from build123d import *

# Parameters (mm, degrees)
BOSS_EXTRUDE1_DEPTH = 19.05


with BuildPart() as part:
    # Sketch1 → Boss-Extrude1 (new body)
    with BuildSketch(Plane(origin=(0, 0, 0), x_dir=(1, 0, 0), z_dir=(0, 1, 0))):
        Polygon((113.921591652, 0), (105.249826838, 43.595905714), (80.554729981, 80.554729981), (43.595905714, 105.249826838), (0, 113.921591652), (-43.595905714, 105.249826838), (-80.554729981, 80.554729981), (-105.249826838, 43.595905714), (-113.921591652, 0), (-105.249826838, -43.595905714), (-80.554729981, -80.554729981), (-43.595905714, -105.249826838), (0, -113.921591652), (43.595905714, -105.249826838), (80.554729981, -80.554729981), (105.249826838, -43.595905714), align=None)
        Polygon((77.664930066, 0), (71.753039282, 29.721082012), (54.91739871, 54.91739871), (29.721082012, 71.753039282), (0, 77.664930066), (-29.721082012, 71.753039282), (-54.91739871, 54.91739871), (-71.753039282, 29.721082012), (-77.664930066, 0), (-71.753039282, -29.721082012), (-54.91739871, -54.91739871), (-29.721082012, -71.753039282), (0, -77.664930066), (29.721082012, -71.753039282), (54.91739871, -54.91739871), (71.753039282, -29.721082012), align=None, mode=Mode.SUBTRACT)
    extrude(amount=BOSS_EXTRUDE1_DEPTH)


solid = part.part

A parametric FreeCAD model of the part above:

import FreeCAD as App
import Part
import Sketcher

V = App.Vector
Q = App.Units.Quantity

doc = App.newDocument("Part")
body = doc.addObject("PartDesign::Body", "Body")

# Sketch on XZ plane
sketch1 = body.newObject("Sketcher::SketchObject", "Sketch")
sketch1.AttachmentSupport = (doc.getObject("XZ_Plane"), [""])
sketch1.MapMode = "FlatFace"
sketch1.addGeometry([
    Part.LineSegment(V(114, 0, 0), V(105, -44, 0)),  # 0
    Part.LineSegment(V(105, -44, 0), V(81, -81, 0)),  # 1
    Part.LineSegment(V(81, -81, 0), V(44, -105, 0)),  # 2
    Part.LineSegment(V(44, -105, 0), V(0, -114, 0)),  # 3
    Part.LineSegment(V(0, -114, 0), V(-44, -105, 0)),  # 4
    Part.LineSegment(V(-44, -105, 0), V(-81, -81, 0)),  # 5
    Part.LineSegment(V(-81, -81, 0), V(-105, -44, 0)),  # 6
    Part.LineSegment(V(-105, -44, 0), V(-114, 0, 0)),  # 7
    Part.LineSegment(V(-114, 0, 0), V(-105, 44, 0)),  # 8
    Part.LineSegment(V(-105, 44, 0), V(-81, 81, 0)),  # 9
    Part.LineSegment(V(-81, 81, 0), V(-44, 105, 0)),  # 10
    Part.LineSegment(V(-44, 105, 0), V(0, 114, 0)),  # 11
    Part.LineSegment(V(0, 114, 0), V(44, 105, 0)),  # 12
    Part.LineSegment(V(44, 105, 0), V(81, 81, 0)),  # 13
    Part.LineSegment(V(81, 81, 0), V(105, 44, 0)),  # 14
    Part.LineSegment(V(105, 44, 0), V(114, 0, 0)),  # 15
    Part.LineSegment(V(72, -30, 0), V(78, 0, 0)),  # 16
    Part.LineSegment(V(78, 0, 0), V(72, 30, 0)),  # 17
    Part.LineSegment(V(72, 30, 0), V(55, 55, 0)),  # 18
    Part.LineSegment(V(55, 55, 0), V(30, 72, 0)),  # 19
    Part.LineSegment(V(30, 72, 0), V(0, 78, 0)),  # 20
    Part.LineSegment(V(0, 78, 0), V(-30, 72, 0)),  # 21
    Part.LineSegment(V(-30, 72, 0), V(-55, 55, 0)),  # 22
    Part.LineSegment(V(-55, 55, 0), V(-72, 30, 0)),  # 23
    Part.LineSegment(V(-72, 30, 0), V(-78, 0, 0)),  # 24
    Part.LineSegment(V(-78, 0, 0), V(-72, -30, 0)),  # 25
    Part.LineSegment(V(-72, -30, 0), V(-55, -55, 0)),  # 26
    Part.LineSegment(V(-55, -55, 0), V(-30, -72, 0)),  # 27
    Part.LineSegment(V(-30, -72, 0), V(0, -78, 0)),  # 28
    Part.LineSegment(V(0, -78, 0), V(30, -72, 0)),  # 29
    Part.LineSegment(V(30, -72, 0), V(55, -55, 0)),  # 30
    Part.LineSegment(V(55, -55, 0), V(72, -30, 0)),  # 31
], False)
sketch1.addConstraint([
    Sketcher.Constraint("Coincident", 0, 2, 1, 1),
    Sketcher.Constraint("Coincident", 1, 2, 2, 1),
    Sketcher.Constraint("Coincident", 2, 2, 3, 1),
    Sketcher.Constraint("Coincident", 3, 2, 4, 1),
    Sketcher.Constraint("Coincident", 4, 2, 5, 1),
    Sketcher.Constraint("Coincident", 5, 2, 6, 1),
    Sketcher.Constraint("Coincident", 6, 2, 7, 1),
    Sketcher.Constraint("Coincident", 7, 2, 8, 1),
    Sketcher.Constraint("Coincident", 8, 2, 9, 1),
    Sketcher.Constraint("Coincident", 9, 2, 10, 1),
    Sketcher.Constraint("Coincident", 10, 2, 11, 1),
    Sketcher.Constraint("Coincident", 11, 2, 12, 1),
    Sketcher.Constraint("Coincident", 12, 2, 13, 1),
    Sketcher.Constraint("Coincident", 13, 2, 14, 1),
    Sketcher.Constraint("Coincident", 14, 2, 15, 1),
    Sketcher.Constraint("Coincident", 15, 2, 0, 1),
    Sketcher.Constraint("Coincident", 16, 2, 17, 1),
    Sketcher.Constraint("Coincident", 17, 2, 18, 1),
    Sketcher.Constraint("Coincident", 18, 2, 19, 1),
    Sketcher.Constraint("Coincident", 19, 2, 20, 1),
    Sketcher.Constraint("Coincident", 20, 2, 21, 1),
    Sketcher.Constraint("Coincident", 21, 2, 22, 1),
    Sketcher.Constraint("Coincident", 22, 2, 23, 1),
    Sketcher.Constraint("Coincident", 23, 2, 24, 1),
    Sketcher.Constraint("Coincident", 24, 2, 25, 1),
    Sketcher.Constraint("Coincident", 25, 2, 26, 1),
    Sketcher.Constraint("Coincident", 26, 2, 27, 1),
    Sketcher.Constraint("Coincident", 27, 2, 28, 1),
    Sketcher.Constraint("Coincident", 28, 2, 29, 1),
    Sketcher.Constraint("Coincident", 29, 2, 30, 1),
    Sketcher.Constraint("Coincident", 30, 2, 31, 1),
    Sketcher.Constraint("Coincident", 31, 2, 16, 1),
    Sketcher.Constraint("Symmetric", 0, 2, 8, 2, -1, 1),
    Sketcher.Constraint("Symmetric", 1, 2, 9, 2, -1, 1),
    Sketcher.Constraint("Symmetric", 2, 2, 10, 2, -1, 1),
    Sketcher.Constraint("Symmetric", 3, 2, 11, 2, -1, 1),
    Sketcher.Constraint("Symmetric", 4, 2, 12, 2, -1, 1),
    Sketcher.Constraint("Symmetric", 5, 2, 13, 2, -1, 1),
    Sketcher.Constraint("Symmetric", 6, 2, 14, 2, -1, 1),
    Sketcher.Constraint("Symmetric", 7, 2, 15, 2, -1, 1),
    Sketcher.Constraint("Symmetric", 16, 2, 24, 2, -1, 1),
    Sketcher.Constraint("Symmetric", 17, 2, 25, 2, -1, 1),
    Sketcher.Constraint("Symmetric", 18, 2, 26, 2, -1, 1),
    Sketcher.Constraint("Symmetric", 19, 2, 27, 2, -1, 1),
    Sketcher.Constraint("Symmetric", 20, 2, 28, 2, -1, 1),
    Sketcher.Constraint("Symmetric", 21, 2, 29, 2, -1, 1),
    Sketcher.Constraint("Symmetric", 22, 2, 30, 2, -1, 1),
    Sketcher.Constraint("Symmetric", 23, 2, 31, 2, -1, 1),
    Sketcher.Constraint("Symmetric", 2, 2, 4, 2, -2),
    Sketcher.Constraint("Symmetric", 1, 2, 5, 2, -2),
    Sketcher.Constraint("Symmetric", 0, 2, 6, 2, -2),
    Sketcher.Constraint("Symmetric", 19, 2, 21, 2, -2),
    Sketcher.Constraint("Symmetric", 18, 2, 22, 2, -2),
    Sketcher.Constraint("Symmetric", 17, 2, 23, 2, -2),
    Sketcher.Constraint("PointOnObject", 3, 2, -2),
    Sketcher.Constraint("PointOnObject", 7, 2, -1),
    Sketcher.Constraint("PointOnObject", 16, 2, -1),
    Sketcher.Constraint("PointOnObject", 20, 2, -2),
    Sketcher.Constraint("Perpendicular", 0, 4),
    Sketcher.Constraint("Perpendicular", 1, 5),
    Sketcher.Constraint("Perpendicular", 12, 16),
    Sketcher.Constraint("Parallel", 14, 18),
    Sketcher.Constraint("Parallel", 13, 19),
    Sketcher.Constraint("Perpendicular", 16, 20),
    Sketcher.Constraint("Equal", 0, 1),
    Sketcher.Constraint("Equal", 1, 2),
    Sketcher.Constraint("Equal", 2, 3),
    Sketcher.Constraint("Equal", 17, 18),
    Sketcher.Constraint("Equal", 18, 19),
    Sketcher.Constraint("Equal", 19, 20),
    Sketcher.Constraint("Distance", 0, Q("1.75 in")),
    Sketcher.Constraint("Angle", 0, Q("-101.25 deg")),
    Sketcher.Constraint("Angle", 1, Q("-123.75 deg")),
    Sketcher.Constraint("DistanceX", -1, 1, 18, 2, 54.917399),
])
pad1 = body.newObject("PartDesign::Pad", "Pad")
pad1.Profile = sketch1
pad1.Length = Q("0.75 in")
pad1.Reversed = True

doc.recompute()
